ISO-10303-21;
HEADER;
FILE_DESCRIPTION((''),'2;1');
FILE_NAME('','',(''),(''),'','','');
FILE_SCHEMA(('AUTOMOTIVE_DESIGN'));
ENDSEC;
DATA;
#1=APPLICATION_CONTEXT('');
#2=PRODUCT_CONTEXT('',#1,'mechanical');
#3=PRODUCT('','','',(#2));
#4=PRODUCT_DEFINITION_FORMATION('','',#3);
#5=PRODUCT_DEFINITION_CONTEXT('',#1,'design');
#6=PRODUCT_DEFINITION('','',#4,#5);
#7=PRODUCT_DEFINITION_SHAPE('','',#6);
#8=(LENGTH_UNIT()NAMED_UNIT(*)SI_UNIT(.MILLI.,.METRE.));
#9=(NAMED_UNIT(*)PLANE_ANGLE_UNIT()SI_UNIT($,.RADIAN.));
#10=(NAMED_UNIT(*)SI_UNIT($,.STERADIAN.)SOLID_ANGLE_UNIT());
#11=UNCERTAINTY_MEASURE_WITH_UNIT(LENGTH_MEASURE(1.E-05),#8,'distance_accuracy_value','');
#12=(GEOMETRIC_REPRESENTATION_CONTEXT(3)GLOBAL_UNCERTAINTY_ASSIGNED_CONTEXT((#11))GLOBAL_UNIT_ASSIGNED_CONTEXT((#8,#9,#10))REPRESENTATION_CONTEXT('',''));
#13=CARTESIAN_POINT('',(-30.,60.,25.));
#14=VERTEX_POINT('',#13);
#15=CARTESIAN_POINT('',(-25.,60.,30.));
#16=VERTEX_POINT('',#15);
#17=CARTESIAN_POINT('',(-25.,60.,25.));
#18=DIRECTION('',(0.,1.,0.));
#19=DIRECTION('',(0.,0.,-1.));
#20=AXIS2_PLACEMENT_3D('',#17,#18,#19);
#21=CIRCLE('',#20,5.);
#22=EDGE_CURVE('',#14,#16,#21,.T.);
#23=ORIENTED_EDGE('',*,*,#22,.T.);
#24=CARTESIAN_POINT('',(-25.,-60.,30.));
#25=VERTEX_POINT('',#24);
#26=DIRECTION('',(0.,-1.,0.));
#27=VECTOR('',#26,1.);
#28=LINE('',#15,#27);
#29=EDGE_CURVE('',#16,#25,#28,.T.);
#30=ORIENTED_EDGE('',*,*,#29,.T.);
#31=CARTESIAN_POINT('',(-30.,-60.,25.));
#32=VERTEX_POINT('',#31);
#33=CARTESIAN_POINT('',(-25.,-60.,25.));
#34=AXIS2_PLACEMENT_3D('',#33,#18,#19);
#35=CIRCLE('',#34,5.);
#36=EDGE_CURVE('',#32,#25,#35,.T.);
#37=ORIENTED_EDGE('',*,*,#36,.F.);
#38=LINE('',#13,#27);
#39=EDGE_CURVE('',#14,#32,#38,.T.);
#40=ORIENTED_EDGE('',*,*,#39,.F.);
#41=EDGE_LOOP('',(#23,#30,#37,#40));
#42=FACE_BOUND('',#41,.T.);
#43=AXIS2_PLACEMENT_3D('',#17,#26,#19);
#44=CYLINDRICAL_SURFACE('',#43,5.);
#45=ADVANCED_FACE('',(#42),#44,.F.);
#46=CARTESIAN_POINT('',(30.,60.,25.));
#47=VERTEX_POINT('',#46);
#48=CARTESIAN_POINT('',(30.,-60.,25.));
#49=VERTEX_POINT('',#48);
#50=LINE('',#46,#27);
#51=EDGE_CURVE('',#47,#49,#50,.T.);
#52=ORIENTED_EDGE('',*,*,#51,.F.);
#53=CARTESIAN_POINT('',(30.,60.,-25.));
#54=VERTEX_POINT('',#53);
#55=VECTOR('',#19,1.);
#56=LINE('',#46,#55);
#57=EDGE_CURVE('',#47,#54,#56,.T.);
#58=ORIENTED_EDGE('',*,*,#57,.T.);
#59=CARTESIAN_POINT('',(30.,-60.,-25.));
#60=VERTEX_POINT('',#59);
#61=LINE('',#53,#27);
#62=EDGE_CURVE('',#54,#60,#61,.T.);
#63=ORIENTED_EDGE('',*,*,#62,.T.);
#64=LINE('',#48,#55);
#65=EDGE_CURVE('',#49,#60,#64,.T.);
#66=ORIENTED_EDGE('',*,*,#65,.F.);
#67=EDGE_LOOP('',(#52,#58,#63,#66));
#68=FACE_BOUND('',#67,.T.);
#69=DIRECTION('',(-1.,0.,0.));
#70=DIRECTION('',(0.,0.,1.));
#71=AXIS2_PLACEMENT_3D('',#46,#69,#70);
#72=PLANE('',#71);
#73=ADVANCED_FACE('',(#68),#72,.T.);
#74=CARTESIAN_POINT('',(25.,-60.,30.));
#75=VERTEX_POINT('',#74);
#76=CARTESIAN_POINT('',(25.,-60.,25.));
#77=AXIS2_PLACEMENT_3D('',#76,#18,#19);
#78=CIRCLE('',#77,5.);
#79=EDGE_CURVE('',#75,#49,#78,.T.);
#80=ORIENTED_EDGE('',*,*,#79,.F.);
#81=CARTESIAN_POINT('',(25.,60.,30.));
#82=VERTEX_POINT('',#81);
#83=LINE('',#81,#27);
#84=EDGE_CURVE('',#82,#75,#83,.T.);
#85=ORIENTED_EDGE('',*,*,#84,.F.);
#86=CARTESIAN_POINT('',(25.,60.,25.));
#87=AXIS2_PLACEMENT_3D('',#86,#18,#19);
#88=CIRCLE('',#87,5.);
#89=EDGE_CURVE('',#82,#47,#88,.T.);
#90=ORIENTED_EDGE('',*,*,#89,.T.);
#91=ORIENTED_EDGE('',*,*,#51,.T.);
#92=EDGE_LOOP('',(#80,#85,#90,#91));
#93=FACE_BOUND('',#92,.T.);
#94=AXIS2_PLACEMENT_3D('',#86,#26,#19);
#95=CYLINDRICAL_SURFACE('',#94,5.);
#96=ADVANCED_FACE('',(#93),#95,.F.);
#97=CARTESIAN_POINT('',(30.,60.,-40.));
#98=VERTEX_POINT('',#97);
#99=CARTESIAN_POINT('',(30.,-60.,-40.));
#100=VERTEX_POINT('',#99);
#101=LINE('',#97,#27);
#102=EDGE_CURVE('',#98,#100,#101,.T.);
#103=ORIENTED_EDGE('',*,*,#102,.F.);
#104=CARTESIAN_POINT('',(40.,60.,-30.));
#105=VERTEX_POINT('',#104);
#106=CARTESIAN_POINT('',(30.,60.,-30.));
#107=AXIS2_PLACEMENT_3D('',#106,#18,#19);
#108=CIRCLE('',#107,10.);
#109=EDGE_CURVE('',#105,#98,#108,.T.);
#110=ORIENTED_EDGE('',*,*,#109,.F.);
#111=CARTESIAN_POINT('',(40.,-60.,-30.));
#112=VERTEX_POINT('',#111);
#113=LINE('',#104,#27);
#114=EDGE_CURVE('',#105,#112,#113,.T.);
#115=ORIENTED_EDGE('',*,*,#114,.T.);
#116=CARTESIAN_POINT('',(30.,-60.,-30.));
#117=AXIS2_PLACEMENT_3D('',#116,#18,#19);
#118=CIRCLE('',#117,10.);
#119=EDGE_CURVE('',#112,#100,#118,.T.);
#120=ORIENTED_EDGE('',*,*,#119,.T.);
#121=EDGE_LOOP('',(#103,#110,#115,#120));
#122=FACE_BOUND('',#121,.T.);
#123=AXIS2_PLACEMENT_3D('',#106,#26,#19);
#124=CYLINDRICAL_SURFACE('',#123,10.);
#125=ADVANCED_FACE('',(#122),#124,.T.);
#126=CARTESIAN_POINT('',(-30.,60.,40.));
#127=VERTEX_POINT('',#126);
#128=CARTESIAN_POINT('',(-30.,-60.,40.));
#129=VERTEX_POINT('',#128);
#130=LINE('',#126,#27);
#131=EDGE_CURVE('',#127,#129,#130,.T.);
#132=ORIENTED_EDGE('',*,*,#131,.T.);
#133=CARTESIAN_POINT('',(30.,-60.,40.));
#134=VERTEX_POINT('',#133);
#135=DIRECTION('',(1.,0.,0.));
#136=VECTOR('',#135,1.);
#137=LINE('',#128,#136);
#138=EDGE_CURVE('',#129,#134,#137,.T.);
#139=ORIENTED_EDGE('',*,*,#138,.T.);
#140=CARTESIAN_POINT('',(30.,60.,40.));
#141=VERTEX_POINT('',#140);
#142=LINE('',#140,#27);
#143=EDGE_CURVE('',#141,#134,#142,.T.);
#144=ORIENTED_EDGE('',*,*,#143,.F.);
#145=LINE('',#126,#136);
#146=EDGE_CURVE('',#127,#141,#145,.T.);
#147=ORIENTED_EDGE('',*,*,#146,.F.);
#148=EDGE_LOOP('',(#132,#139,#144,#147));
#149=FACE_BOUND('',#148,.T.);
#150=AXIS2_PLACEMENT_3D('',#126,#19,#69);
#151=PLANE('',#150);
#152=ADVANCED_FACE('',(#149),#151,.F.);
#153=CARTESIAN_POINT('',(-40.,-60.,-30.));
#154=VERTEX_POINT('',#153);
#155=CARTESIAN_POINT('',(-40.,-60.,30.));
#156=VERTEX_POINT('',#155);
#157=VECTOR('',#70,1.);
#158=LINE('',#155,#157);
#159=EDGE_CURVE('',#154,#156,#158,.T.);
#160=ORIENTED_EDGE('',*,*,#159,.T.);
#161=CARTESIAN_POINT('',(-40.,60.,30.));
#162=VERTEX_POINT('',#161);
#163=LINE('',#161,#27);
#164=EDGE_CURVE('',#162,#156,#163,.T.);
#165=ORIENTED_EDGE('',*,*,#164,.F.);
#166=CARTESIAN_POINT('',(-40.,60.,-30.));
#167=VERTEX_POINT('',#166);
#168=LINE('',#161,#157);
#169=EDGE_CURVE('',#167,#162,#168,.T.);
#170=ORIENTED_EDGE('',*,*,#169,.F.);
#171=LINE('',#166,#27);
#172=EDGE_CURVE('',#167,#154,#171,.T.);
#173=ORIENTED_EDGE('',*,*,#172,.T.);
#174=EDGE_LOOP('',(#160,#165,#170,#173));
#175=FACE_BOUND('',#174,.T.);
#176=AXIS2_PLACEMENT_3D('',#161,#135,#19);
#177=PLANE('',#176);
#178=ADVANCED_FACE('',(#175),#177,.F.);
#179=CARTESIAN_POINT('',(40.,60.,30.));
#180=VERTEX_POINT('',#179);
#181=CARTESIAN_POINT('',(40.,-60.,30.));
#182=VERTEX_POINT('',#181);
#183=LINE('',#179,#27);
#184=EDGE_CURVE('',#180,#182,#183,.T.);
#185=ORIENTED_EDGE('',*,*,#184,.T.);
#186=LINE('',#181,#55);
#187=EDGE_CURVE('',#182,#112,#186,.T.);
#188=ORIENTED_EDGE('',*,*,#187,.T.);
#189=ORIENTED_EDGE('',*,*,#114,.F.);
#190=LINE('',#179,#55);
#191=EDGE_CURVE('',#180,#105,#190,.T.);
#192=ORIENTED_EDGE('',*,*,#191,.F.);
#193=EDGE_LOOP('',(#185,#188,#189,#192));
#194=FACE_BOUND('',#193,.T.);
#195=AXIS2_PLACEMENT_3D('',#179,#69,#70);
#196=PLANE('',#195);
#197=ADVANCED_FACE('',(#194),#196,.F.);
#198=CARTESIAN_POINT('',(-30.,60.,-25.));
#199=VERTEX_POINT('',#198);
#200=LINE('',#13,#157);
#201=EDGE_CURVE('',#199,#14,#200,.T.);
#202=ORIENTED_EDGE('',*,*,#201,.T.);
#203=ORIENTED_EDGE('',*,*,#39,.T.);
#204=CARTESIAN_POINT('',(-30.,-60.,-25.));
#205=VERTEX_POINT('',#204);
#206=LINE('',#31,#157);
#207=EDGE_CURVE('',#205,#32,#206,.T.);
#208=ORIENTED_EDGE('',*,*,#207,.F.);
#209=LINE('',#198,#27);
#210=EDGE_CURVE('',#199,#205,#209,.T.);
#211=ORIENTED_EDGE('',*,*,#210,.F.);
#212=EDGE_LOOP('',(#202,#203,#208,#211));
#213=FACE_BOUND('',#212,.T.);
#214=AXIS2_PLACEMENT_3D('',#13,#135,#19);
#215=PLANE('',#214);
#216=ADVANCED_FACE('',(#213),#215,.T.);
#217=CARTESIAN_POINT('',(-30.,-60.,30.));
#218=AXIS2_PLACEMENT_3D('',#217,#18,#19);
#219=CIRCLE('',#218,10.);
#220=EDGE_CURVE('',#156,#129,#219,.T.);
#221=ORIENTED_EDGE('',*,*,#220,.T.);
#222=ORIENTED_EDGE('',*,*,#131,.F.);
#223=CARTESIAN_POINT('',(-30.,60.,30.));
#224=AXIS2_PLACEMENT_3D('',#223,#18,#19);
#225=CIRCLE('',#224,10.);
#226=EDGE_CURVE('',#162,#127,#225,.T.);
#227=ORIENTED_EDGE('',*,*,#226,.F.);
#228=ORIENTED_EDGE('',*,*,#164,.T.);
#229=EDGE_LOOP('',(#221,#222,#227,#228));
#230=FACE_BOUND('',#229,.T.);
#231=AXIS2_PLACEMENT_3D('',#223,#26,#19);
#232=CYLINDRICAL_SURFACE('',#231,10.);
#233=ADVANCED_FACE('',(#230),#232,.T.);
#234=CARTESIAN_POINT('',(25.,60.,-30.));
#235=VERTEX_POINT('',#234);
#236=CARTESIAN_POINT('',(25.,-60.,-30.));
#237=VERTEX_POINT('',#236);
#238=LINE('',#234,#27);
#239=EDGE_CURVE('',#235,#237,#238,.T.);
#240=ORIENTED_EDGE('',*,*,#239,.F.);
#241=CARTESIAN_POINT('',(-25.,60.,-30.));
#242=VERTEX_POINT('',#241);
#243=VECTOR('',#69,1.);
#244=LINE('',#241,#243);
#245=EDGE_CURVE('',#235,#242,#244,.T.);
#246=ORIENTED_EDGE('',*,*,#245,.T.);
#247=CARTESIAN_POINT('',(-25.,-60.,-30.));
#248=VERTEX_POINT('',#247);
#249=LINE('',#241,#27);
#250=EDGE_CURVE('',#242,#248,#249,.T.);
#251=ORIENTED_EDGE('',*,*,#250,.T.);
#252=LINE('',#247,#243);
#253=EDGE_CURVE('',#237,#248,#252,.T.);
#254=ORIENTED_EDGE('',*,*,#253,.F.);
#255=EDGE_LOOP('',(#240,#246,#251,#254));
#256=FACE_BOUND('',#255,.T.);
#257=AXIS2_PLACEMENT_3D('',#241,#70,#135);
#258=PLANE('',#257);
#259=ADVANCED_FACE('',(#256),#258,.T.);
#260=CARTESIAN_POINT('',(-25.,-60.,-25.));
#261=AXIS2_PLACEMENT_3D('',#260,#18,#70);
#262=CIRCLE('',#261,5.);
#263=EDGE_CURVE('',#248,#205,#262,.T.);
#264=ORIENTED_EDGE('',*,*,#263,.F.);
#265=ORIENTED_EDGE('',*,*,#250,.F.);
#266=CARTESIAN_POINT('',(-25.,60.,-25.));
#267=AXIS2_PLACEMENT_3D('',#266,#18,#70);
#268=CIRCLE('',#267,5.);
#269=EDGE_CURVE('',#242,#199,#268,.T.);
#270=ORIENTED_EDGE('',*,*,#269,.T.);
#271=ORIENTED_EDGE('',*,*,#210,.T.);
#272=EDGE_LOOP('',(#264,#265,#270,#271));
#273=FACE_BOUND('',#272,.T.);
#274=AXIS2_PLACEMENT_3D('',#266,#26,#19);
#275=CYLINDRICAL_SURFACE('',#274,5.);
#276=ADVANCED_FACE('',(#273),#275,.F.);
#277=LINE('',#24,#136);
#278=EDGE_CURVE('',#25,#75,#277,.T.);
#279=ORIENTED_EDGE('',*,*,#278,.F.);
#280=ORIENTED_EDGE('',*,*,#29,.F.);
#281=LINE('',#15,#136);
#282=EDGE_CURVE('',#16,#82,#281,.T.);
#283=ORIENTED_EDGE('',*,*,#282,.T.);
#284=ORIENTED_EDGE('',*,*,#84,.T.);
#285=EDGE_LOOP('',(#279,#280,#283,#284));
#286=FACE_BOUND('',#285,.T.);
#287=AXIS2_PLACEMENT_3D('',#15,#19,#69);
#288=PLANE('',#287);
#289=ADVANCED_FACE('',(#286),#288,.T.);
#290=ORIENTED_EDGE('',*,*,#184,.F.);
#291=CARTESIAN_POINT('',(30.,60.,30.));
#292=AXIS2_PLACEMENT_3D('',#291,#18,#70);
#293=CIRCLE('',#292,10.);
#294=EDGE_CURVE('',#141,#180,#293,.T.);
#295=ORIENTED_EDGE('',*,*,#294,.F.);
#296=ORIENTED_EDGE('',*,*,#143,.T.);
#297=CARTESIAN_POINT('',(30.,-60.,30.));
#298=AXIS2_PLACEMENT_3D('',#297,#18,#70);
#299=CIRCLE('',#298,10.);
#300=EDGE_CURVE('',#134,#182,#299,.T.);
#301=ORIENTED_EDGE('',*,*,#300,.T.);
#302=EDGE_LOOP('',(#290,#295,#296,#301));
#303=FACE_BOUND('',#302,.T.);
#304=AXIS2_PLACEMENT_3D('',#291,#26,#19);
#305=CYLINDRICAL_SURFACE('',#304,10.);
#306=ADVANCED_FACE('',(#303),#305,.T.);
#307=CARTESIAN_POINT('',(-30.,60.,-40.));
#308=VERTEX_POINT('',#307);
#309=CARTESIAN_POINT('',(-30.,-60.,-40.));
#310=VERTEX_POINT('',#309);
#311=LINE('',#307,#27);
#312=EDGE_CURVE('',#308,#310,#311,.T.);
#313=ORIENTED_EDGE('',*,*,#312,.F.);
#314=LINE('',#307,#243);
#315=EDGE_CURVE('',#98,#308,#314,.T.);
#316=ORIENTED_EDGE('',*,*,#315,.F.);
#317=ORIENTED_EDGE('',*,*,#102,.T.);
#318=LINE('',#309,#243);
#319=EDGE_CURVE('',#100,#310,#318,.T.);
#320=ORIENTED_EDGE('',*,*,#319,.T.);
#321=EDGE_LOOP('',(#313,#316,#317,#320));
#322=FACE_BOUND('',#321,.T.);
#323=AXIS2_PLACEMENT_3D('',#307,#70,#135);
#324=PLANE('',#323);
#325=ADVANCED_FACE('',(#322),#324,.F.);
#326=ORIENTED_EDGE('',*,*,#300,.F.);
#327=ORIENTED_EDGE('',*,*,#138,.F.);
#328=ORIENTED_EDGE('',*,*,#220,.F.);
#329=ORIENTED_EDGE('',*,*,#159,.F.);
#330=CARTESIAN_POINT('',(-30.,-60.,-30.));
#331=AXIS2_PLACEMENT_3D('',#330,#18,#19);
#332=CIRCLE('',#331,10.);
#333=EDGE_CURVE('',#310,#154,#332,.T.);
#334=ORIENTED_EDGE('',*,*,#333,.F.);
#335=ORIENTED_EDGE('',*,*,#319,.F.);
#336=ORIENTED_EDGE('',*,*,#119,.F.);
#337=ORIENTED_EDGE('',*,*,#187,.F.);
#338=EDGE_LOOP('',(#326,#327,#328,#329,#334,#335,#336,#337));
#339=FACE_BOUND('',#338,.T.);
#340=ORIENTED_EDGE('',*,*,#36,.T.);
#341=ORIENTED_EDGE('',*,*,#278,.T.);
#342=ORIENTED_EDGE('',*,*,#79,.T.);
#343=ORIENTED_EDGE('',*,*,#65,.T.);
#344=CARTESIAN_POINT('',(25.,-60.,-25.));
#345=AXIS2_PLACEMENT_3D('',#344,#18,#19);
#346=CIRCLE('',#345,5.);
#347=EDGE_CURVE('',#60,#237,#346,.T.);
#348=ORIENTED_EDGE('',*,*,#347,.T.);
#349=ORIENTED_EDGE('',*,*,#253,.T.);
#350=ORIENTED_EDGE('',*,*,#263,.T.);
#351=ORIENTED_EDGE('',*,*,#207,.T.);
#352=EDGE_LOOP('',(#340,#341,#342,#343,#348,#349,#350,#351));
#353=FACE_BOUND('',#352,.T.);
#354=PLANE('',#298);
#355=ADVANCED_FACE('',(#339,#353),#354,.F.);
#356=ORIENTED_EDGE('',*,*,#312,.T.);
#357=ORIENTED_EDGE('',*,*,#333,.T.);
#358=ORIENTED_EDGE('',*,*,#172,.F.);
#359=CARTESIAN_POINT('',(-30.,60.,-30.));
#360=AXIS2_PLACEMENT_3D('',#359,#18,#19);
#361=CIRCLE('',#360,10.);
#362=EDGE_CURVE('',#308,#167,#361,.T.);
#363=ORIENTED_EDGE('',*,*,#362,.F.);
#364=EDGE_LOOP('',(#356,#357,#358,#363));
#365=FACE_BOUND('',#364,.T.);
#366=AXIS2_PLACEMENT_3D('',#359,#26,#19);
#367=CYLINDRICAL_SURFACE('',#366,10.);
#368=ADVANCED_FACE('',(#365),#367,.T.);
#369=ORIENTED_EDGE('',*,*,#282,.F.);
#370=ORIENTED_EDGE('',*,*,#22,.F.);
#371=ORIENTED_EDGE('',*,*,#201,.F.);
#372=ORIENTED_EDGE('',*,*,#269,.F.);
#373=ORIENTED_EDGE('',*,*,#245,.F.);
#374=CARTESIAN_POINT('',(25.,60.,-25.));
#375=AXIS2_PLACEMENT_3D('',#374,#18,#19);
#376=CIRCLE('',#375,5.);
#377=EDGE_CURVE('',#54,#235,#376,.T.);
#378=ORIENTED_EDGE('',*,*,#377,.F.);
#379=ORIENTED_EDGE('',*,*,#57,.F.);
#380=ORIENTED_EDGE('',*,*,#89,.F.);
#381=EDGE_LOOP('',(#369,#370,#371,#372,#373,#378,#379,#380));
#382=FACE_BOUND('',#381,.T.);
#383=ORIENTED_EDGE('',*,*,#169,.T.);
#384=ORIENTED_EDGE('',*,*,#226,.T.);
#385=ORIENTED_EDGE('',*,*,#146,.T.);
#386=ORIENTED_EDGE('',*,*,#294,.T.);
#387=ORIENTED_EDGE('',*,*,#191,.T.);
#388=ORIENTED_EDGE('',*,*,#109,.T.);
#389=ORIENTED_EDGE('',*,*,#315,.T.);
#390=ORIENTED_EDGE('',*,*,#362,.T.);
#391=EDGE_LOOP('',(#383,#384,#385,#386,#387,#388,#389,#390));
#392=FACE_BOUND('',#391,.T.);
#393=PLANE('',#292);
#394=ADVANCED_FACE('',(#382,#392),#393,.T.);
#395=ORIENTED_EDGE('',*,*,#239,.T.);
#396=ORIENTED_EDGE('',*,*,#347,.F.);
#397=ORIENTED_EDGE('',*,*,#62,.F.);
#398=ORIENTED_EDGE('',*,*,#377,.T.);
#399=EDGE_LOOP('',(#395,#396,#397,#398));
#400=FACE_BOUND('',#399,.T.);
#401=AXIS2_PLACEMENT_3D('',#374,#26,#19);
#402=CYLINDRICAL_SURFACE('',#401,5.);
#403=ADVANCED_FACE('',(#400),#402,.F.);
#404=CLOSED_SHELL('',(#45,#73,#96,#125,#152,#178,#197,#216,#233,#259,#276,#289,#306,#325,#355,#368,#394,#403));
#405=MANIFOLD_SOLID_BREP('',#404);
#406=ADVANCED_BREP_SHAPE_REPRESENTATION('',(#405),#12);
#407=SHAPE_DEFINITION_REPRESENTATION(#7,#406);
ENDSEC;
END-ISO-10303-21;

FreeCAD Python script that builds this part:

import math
import FreeCAD as App
import Part
import Sketcher

V = App.Vector
Q = App.Units.Quantity

doc = App.newDocument("Part")
params = doc.addObject("Spreadsheet::Sheet", "Params")
for row, (alias, value) in enumerate([
    ("sketch1_radius", "10 mm"),
    ("sketch1_radius2", "5 mm"),
    ("sketch1_width", "60 mm"),
    ("pad1_length", "120 mm"),
], start=1):
    params.set(f"A{row}", alias)
    params.set(f"B{row}", "=" + value)
    params.setAlias(f"B{row}", alias)

body = doc.addObject("PartDesign::Body", "Body")

# Sketch on XZ plane
sketch1 = body.newObject("Sketcher::SketchObject", "Sketch")
sketch1.AttachmentSupport = (doc.getObject("XZ_Plane"), [""])
sketch1.MapMode = "FlatFace"
sketch1.addGeometry([
    Part.LineSegment(V(-30, 40, 0), V(30, 40, 0)),  # 0
    Part.ArcOfCircle(Part.Circle(V(30, 30, 0), V(0, 0, 1), 10), math.radians(0), math.radians(90)),  # 1
    Part.LineSegment(V(40, 30, 0), V(40, -30, 0)),  # 2
    Part.ArcOfCircle(Part.Circle(V(30, -30, 0), V(0, 0, 1), 10), math.radians(-90), math.radians(0)),  # 3
    Part.LineSegment(V(30, -40, 0), V(-30, -40, 0)),  # 4
    Part.ArcOfCircle(Part.Circle(V(-30, -30, 0), V(0, 0, 1), 10), math.radians(180), math.radians(270)),  # 5
    Part.LineSegment(V(-40, -30, 0), V(-40, 30, 0)),  # 6
    Part.ArcOfCircle(Part.Circle(V(-30, 30, 0), V(0, 0, 1), 10), math.radians(90), math.radians(180)),  # 7
    Part.ArcOfCircle(Part.Circle(V(-25, -25, 0), V(0, 0, 1), 5), math.radians(180), math.radians(270)),  # 8
    Part.LineSegment(V(-25, -30, 0), V(25, -30, 0)),  # 9
    Part.ArcOfCircle(Part.Circle(V(25, -25, 0), V(0, 0, 1), 5), math.radians(-90), math.radians(0)),  # 10
    Part.LineSegment(V(30, -25, 0), V(30, 25, 0)),  # 11
    Part.ArcOfCircle(Part.Circle(V(25, 25, 0), V(0, 0, 1), 5), math.radians(0), math.radians(90)),  # 12
    Part.LineSegment(V(25, 30, 0), V(-25, 30, 0)),  # 13
    Part.ArcOfCircle(Part.Circle(V(-25, 25, 0), V(0, 0, 1), 5), math.radians(90), math.radians(180)),  # 14
    Part.LineSegment(V(-30, 25, 0), V(-30, -25, 0)),  # 15
], False)
sketch1.addConstraint([
    Sketcher.Constraint("Tangent", 0, 2, 1, 2),
    Sketcher.Constraint("Tangent", 1, 1, 2, 1),
    Sketcher.Constraint("Tangent", 2, 2, 3, 2),
    Sketcher.Constraint("Tangent", 3, 1, 4, 1),
    Sketcher.Constraint("Tangent", 4, 2, 5, 2),
    Sketcher.Constraint("Tangent", 5, 1, 6, 1),
    Sketcher.Constraint("Tangent", 6, 2, 7, 2),
    Sketcher.Constraint("Tangent", 7, 1, 0, 1),
    Sketcher.Constraint("Tangent", 8, 2, 9, 1),
    Sketcher.Constraint("Tangent", 9, 2, 10, 1),
    Sketcher.Constraint("Tangent", 10, 2, 11, 1),
    Sketcher.Constraint("Tangent", 11, 2, 12, 1),
    Sketcher.Constraint("Tangent", 12, 2, 13, 1),
    Sketcher.Constraint("Tangent", 13, 2, 14, 1),
    Sketcher.Constraint("Tangent", 14, 2, 15, 1),
    Sketcher.Constraint("Tangent", 15, 2, 8, 1),
    Sketcher.Constraint("Horizontal", 0),
    Sketcher.Constraint("Vertical", 2),
    Sketcher.Constraint("Horizontal", 4),
    Sketcher.Constraint("Vertical", 6),
    Sketcher.Constraint("Horizontal", 9),
    Sketcher.Constraint("Vertical", 11),
    Sketcher.Constraint("Horizontal", 13),
    Sketcher.Constraint("Vertical", 15),
    Sketcher.Constraint("Equal", 1, 3),
    Sketcher.Constraint("Equal", 3, 5),
    Sketcher.Constraint("Equal", 5, 7),
    Sketcher.Constraint("Equal", 8, 10),
    Sketcher.Constraint("Equal", 10, 12),
    Sketcher.Constraint("Equal", 12, 14),
    Sketcher.Constraint("Symmetric", 1, 3, 5, 3, -1, 1),
    Sketcher.Constraint("Symmetric", 8, 3, 12, 3, -1, 1),
    Sketcher.Constraint("Horizontal", 5, 1, 8, 2),
    Sketcher.Constraint("Vertical", 3, 1, 10, 2),
    Sketcher.Constraint("Equal", 4, 2),
    Sketcher.Constraint("Radius", 1, Q("10 mm")),
    Sketcher.Constraint("Radius", 8, Q("5 mm")),
    Sketcher.Constraint("DistanceX", 0, 1, 0, 2, Q("60 mm")),
])
sketch1.setExpression("Constraints[35]", "Params.sketch1_radius")
sketch1.setExpression("Constraints[36]", "Params.sketch1_radius2")
sketch1.setExpression("Constraints[37]", "Params.sketch1_width")
pad1 = body.newObject("PartDesign::Pad", "Pad")
pad1.Profile = sketch1
pad1.setExpression("Length", "Params.pad1_length")
pad1.Midplane = True

doc.recompute()
